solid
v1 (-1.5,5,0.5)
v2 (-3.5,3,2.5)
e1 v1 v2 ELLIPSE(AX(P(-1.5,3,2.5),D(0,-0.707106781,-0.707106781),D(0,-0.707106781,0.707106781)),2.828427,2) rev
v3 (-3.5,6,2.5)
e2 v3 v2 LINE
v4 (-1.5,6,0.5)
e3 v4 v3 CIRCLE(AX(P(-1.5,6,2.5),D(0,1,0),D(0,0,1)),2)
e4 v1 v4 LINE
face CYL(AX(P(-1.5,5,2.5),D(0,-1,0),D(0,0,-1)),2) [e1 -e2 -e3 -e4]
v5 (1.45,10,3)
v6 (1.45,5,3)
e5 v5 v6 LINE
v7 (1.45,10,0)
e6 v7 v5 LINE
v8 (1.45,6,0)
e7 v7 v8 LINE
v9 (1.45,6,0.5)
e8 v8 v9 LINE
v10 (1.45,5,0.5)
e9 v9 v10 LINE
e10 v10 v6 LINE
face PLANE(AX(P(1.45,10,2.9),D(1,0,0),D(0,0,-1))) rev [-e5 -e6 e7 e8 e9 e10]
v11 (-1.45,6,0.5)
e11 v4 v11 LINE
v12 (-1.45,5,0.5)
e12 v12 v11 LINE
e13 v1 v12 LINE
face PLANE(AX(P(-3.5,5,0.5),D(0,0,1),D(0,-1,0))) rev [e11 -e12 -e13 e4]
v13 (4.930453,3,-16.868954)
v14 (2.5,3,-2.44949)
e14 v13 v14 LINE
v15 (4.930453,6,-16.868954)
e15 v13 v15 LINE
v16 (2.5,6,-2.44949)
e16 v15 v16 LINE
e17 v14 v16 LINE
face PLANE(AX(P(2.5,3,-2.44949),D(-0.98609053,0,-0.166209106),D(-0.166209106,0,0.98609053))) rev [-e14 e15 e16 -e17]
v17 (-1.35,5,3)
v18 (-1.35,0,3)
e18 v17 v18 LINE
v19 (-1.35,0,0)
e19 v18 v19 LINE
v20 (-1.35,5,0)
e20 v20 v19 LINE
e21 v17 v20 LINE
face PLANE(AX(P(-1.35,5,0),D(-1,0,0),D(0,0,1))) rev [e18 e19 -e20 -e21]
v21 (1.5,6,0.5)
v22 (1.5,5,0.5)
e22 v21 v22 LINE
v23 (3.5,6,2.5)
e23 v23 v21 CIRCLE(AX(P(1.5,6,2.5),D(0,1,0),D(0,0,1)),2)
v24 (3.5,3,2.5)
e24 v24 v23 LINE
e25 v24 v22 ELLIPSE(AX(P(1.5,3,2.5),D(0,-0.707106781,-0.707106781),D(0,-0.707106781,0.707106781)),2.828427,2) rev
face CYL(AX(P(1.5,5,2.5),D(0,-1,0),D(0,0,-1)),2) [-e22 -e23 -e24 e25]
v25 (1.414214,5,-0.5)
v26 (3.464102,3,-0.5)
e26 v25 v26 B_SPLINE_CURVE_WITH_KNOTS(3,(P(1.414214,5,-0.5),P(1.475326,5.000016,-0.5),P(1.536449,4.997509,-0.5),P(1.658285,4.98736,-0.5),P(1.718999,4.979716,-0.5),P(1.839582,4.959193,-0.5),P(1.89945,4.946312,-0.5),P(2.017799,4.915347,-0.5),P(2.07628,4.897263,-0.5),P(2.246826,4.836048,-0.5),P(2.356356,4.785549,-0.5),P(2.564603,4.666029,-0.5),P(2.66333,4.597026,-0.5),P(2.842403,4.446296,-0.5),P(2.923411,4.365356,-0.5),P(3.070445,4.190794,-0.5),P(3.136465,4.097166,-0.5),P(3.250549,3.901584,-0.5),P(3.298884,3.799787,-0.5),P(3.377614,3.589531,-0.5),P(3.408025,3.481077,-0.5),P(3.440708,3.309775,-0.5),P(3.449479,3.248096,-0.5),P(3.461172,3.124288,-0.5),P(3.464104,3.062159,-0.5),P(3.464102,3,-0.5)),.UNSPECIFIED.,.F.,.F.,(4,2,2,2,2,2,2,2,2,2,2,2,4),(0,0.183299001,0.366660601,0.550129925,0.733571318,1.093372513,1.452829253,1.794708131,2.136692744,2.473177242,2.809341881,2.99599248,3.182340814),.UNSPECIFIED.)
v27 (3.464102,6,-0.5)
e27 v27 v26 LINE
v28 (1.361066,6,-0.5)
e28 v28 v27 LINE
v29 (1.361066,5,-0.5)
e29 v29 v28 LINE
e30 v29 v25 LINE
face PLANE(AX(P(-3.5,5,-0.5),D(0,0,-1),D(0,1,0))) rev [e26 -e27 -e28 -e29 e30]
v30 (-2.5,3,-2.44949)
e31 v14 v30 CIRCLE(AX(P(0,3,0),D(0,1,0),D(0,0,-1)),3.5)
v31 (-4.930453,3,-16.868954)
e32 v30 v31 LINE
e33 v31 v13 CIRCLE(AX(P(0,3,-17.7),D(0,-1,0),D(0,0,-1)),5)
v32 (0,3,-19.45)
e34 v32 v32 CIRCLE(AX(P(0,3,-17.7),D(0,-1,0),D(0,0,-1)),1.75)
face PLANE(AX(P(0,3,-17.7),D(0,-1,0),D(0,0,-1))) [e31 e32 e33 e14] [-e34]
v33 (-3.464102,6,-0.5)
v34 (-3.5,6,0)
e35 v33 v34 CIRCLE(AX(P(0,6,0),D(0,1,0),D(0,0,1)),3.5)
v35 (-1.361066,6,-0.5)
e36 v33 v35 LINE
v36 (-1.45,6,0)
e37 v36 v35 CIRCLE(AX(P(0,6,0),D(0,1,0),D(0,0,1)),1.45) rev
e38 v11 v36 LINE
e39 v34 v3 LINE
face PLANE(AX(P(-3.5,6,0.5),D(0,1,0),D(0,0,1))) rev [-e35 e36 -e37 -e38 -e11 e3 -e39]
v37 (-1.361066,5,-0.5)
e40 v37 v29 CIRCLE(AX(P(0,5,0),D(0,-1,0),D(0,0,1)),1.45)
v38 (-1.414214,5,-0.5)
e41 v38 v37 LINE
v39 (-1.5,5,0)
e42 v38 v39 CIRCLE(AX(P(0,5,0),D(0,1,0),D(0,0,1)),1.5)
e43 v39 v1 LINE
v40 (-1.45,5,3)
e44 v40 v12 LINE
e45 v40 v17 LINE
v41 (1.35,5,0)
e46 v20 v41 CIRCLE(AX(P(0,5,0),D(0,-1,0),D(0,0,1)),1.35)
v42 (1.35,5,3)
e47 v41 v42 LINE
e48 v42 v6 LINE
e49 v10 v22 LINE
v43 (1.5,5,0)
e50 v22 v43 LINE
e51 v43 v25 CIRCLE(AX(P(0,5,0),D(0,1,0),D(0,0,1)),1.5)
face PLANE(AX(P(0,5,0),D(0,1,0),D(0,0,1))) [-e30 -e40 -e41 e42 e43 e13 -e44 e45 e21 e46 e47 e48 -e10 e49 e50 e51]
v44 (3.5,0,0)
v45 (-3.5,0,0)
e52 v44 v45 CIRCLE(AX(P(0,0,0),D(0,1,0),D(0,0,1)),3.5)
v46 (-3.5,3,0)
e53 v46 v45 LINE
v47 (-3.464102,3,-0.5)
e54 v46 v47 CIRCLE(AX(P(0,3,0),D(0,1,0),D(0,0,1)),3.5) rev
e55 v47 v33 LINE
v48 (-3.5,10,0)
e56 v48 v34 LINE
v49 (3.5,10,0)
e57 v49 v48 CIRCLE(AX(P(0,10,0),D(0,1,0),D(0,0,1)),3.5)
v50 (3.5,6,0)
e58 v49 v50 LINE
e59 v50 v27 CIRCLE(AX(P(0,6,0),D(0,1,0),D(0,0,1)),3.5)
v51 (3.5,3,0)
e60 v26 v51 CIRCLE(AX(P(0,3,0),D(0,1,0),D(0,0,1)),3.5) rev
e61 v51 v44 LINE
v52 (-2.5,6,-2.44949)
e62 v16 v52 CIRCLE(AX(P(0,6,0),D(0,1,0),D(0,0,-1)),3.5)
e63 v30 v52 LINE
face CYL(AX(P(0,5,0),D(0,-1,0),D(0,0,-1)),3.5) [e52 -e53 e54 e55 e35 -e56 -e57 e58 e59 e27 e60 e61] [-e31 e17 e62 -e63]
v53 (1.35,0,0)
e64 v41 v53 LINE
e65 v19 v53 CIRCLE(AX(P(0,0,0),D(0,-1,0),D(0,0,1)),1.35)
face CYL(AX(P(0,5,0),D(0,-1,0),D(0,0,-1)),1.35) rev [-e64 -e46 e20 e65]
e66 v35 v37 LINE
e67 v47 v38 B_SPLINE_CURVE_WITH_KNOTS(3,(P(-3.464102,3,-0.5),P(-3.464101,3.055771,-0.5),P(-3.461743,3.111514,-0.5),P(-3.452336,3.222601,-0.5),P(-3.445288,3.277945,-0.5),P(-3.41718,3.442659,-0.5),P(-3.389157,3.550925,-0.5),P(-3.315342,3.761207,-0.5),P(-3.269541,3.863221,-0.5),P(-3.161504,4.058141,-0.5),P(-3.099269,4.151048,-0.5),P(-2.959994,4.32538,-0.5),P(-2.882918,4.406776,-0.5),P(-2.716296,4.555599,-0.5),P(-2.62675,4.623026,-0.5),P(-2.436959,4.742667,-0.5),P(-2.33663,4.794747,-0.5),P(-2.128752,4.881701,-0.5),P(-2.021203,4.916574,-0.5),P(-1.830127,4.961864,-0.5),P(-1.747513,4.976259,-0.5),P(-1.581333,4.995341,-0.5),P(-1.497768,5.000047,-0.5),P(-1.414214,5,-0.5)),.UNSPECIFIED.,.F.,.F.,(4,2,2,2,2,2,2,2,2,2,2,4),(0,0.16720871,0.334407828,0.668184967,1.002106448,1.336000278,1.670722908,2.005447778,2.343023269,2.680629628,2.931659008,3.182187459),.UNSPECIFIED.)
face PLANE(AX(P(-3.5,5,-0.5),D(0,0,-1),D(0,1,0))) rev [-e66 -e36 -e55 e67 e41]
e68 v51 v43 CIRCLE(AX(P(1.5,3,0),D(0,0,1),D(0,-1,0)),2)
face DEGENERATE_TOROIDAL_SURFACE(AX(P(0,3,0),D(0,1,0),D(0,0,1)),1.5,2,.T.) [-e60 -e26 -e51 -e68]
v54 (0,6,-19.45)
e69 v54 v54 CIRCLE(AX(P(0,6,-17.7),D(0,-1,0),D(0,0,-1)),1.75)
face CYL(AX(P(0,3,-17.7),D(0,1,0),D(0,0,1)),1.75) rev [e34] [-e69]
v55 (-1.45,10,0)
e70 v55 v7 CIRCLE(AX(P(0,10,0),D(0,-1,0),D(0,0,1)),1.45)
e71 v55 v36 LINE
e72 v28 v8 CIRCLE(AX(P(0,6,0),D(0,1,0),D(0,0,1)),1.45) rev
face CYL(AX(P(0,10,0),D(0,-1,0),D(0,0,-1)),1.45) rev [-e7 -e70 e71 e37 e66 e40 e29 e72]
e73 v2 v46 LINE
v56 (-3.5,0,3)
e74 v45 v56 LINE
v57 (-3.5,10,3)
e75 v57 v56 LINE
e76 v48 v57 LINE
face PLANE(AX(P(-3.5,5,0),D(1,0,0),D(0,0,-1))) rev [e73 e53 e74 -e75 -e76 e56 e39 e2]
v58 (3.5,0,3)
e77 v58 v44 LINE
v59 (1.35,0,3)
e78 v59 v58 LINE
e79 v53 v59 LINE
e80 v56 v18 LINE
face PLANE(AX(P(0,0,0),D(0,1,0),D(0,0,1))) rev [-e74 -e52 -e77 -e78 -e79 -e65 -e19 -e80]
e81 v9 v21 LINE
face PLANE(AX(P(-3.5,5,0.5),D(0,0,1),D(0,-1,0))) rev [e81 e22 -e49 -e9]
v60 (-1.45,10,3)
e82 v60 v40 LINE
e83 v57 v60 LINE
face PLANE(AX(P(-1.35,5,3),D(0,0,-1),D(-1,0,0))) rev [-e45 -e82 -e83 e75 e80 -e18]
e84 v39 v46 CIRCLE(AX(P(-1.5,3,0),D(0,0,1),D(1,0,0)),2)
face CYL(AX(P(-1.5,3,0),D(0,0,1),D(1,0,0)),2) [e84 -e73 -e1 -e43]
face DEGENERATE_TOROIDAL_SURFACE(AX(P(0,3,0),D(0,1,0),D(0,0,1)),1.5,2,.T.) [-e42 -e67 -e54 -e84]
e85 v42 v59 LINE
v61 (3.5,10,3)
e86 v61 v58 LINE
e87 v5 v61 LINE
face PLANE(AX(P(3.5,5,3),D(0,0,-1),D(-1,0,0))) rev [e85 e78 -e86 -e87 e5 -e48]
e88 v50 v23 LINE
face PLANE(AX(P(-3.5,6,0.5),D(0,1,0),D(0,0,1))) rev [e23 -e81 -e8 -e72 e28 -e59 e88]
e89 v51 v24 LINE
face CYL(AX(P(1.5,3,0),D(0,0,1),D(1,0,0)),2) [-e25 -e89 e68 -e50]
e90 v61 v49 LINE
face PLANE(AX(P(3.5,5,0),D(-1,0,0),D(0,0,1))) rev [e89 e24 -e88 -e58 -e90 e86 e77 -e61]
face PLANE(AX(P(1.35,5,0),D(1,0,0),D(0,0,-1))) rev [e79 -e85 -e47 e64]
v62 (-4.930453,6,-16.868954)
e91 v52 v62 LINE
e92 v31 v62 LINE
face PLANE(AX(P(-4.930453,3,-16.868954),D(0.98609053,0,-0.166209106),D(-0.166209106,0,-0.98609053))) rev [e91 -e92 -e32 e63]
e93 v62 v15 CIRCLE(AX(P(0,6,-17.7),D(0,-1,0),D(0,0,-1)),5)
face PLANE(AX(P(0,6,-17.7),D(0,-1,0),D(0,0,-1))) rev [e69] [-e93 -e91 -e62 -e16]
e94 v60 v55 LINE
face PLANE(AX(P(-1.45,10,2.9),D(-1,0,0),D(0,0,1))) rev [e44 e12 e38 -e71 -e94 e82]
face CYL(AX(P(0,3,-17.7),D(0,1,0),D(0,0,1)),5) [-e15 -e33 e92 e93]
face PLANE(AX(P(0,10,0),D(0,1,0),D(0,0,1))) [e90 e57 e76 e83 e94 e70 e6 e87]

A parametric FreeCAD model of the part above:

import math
import FreeCAD as App
import Part
import Sketcher

V = App.Vector


def edges_at(feature, points):
    """Names of the edges that pass closest to the given points."""
    edges = feature.Shape.Edges
    near = lambda p: min(range(len(edges)), key=lambda i: edges[i].distToShape(Part.Vertex(*p))[0])
    return sorted({f"Edge{near(p) + 1}" for p in points})


def add_polygon(sketch, points):
    """Adds a closed chain of lines whose ends are joined by coincident constraints."""
    first, n = sketch.GeometryCount, len(points)
    for a, b in zip(points, points[1:] + points[:1]):
        sketch.addGeometry(Part.LineSegment(App.Vector(*a, 0), App.Vector(*b, 0)), False)
    for i in range(n):
        sketch.addConstraint(Sketcher.Constraint("Coincident", first + i, 2, first + (i + 1) % n, 1))

doc = App.newDocument("Part")
params = doc.addObject("Spreadsheet::Sheet", "Params")
for row, (alias, value) in enumerate([
    ("sketch1_radius", "3.5 mm"),
    ("sketch1_height", "3 mm"),
    ("sketch1_radius2", "1.35 mm"),
    ("pad1_length", "5 mm"),
    ("sketch2_radius", "3.5 mm"),
    ("sketch2_height", "3 mm"),
    ("sketch2_radius2", "1.45 mm"),
    ("pad2_length", "5 mm"),
    ("sketch3_width", "1 mm"),
    ("fillet_radius", "2 mm"),
    ("sketch4_radius", "5 mm"),
    ("sketch4_diameter", "3.5 mm"),
    ("sketch4_radius2", "3.5 mm"),
    ("pad3_length", "3 mm"),
], start=1):
    params.set(f"A{row}", alias)
    params.set(f"B{row}", "=" + value)
    params.setAlias(f"B{row}", alias)

body = doc.addObject("PartDesign::Body", "Body")

sketch1 = doc.addObject("Sketcher::SketchObject", "Sketch")
body.addObject(sketch1)
sketch1.AttachmentSupport = (doc.XZ_Plane, [""])
sketch1.MapMode = "FlatFace"
sketch1.addGeometry(Part.LineSegment(V(-1.35, 3, 0), V(-1.35, 0, 0)), False)
sketch1.addGeometry(Part.ArcOfCircle(Part.Circle(V(0, 0, 0), V(0, 0, 1), 1.35), math.radians(180), math.radians(360)), False)
sketch1.addGeometry(Part.LineSegment(V(1.35, 0, 0), V(1.35, 3, 0)), False)
sketch1.addGeometry(Part.LineSegment(V(1.35, 3, 0), V(3.5, 3, 0)), False)
sketch1.addGeometry(Part.LineSegment(V(3.5, 3, 0), V(3.5, 0, 0)), False)
sketch1.addGeometry(Part.ArcOfCircle(Part.Circle(V(0, 0, 0), V(0, 0, 1), 3.5), math.radians(180), math.radians(360)), False)
sketch1.addGeometry(Part.LineSegment(V(-3.5, 0, 0), V(-3.5, 3, 0)), False)
sketch1.addGeometry(Part.LineSegment(V(-3.5, 3, 0), V(-1.35, 3, 0)), False)
sketch1.addConstraint(Sketcher.Constraint("Tangent", 0, 2, 1, 1))
sketch1.addConstraint(Sketcher.Constraint("Tangent", 1, 2, 2, 1))
sketch1.addConstraint(Sketcher.Constraint("Coincident", 2, 2, 3, 1))
sketch1.addConstraint(Sketcher.Constraint("Coincident", 3, 2, 4, 1))
sketch1.addConstraint(Sketcher.Constraint("Tangent", 4, 2, 5, 2))
sketch1.addConstraint(Sketcher.Constraint("Tangent", 5, 1, 6, 1))
sketch1.addConstraint(Sketcher.Constraint("Coincident", 6, 2, 7, 1))
sketch1.addConstraint(Sketcher.Constraint("Coincident", 7, 2, 0, 1))
sketch1.addConstraint(Sketcher.Constraint("Vertical", 0))
sketch1.addConstraint(Sketcher.Constraint("Vertical", 2))
sketch1.addConstraint(Sketcher.Constraint("Horizontal", 3))
sketch1.addConstraint(Sketcher.Constraint("Vertical", 4))
sketch1.addConstraint(Sketcher.Constraint("Vertical", 6))
sketch1.addConstraint(Sketcher.Constraint("Horizontal", 7))
sketch1.addConstraint(Sketcher.Constraint("Coincident", 1, 3, -1, 1))
sketch1.addConstraint(Sketcher.Constraint("Coincident", 5, 3, -1, 1))
sketch1.addConstraint(Sketcher.Constraint("Horizontal", 3, 2, 6, 2))
sketch1.addConstraint(Sketcher.Constraint("Radius", 5, 3.5))
sketch1.addConstraint(Sketcher.Constraint("DistanceY", 0, 2, 0, 1, 3.0))
sketch1.addConstraint(Sketcher.Constraint("Radius", 1, 1.35))
sketch1.setExpression("Constraints[17]", "Params.sketch1_radius")
sketch1.setExpression("Constraints[18]", "Params.sketch1_height")
sketch1.setExpression("Constraints[19]", "Params.sketch1_radius2")
pad1 = doc.addObject("PartDesign::Pad", "Pad")
body.addObject(pad1)
pad1.Profile = sketch1
pad1.setExpression("Length", "Params.pad1_length")
pad1.Reversed = True

sketch2 = doc.addObject("Sketcher::SketchObject", "Sketch001")
body.addObject(sketch2)
sketch2.AttachmentSupport = (doc.XZ_Plane, [""])
sketch2.MapMode = "FlatFace"
sketch2.AttachmentOffset = App.Placement(V(0, 0, -5), App.Rotation())
sketch2.addGeometry(Part.ArcOfCircle(Part.Circle(V(0, 0, 0), V(0, 0, 1), 1.45), math.radians(180), math.radians(360)), False)
sketch2.addGeometry(Part.LineSegment(V(1.45, 0, 0), V(1.45, 3, 0)), False)
sketch2.addGeometry(Part.LineSegment(V(1.45, 3, 0), V(3.5, 3, 0)), False)
sketch2.addGeometry(Part.LineSegment(V(3.5, 3, 0), V(3.5, 0, 0)), False)
sketch2.addGeometry(Part.ArcOfCircle(Part.Circle(V(0, 0, 0), V(0, 0, 1), 3.5), math.radians(180), math.radians(360)), False)
sketch2.addGeometry(Part.LineSegment(V(-3.5, 0, 0), V(-3.5, 3, 0)), False)
sketch2.addGeometry(Part.LineSegment(V(-3.5, 3, 0), V(-1.45, 3, 0)), False)
sketch2.addGeometry(Part.LineSegment(V(-1.45, 3, 0), V(-1.45, 0, 0)), False)
sketch2.addConstraint(Sketcher.Constraint("Tangent", 0, 2, 1, 1))
sketch2.addConstraint(Sketcher.Constraint("Coincident", 1, 2, 2, 1))
sketch2.addConstraint(Sketcher.Constraint("Coincident", 2, 2, 3, 1))
sketch2.addConstraint(Sketcher.Constraint("Tangent", 3, 2, 4, 2))
sketch2.addConstraint(Sketcher.Constraint("Tangent", 4, 1, 5, 1))
sketch2.addConstraint(Sketcher.Constraint("Coincident", 5, 2, 6, 1))
sketch2.addConstraint(Sketcher.Constraint("Coincident", 6, 2, 7, 1))
sketch2.addConstraint(Sketcher.Constraint("Tangent", 7, 2, 0, 1))
sketch2.addConstraint(Sketcher.Constraint("Vertical", 1))
sketch2.addConstraint(Sketcher.Constraint("Horizontal", 2))
sketch2.addConstraint(Sketcher.Constraint("Vertical", 3))
sketch2.addConstraint(Sketcher.Constraint("Vertical", 5))
sketch2.addConstraint(Sketcher.Constraint("Horizontal", 6))
sketch2.addConstraint(Sketcher.Constraint("Vertical", 7))
sketch2.addConstraint(Sketcher.Constraint("Coincident", 0, 3, -1, 1))
sketch2.addConstraint(Sketcher.Constraint("Coincident", 4, 3, -1, 1))
sketch2.addConstraint(Sketcher.Constraint("Horizontal", 2, 2, 5, 2))
sketch2.addConstraint(Sketcher.Constraint("Radius", 4, 3.5))
sketch2.addConstraint(Sketcher.Constraint("DistanceY", 1, 1, 1, 2, 3.0))
sketch2.addConstraint(Sketcher.Constraint("Radius", 0, 1.45))
sketch2.setExpression("Constraints[17]", "Params.sketch2_radius")
sketch2.setExpression("Constraints[18]", "Params.sketch2_height")
sketch2.setExpression("Constraints[19]", "Params.sketch2_radius2")
pad2 = doc.addObject("PartDesign::Pad", "Pad001")
body.addObject(pad2)
pad2.Profile = sketch2
pad2.setExpression("Length", "Params.pad2_length")
pad2.Reversed = True

sketch3 = doc.addObject("Sketcher::SketchObject", "Sketch002")
body.addObject(sketch3)
sketch3.AttachmentSupport = (doc.YZ_Plane, [""])
sketch3.MapMode = "FlatFace"
sketch3.AttachmentOffset = App.Placement(V(0, 0, -1.45), App.Rotation())
add_polygon(sketch3, [(6, 0.5), (5, 0.5), (5, -0.5), (6, -0.5)])
sketch3.addConstraint(Sketcher.Constraint("Horizontal", 0))
sketch3.addConstraint(Sketcher.Constraint("Vertical", 1))
sketch3.addConstraint(Sketcher.Constraint("Horizontal", 2))
sketch3.addConstraint(Sketcher.Constraint("Vertical", 3))
sketch3.addConstraint(Sketcher.Constraint("Equal", 2, 1))
sketch3.addConstraint(Sketcher.Constraint("DistanceX", 0, 2, 0, 1, 1.0))
sketch3.addConstraint(Sketcher.Constraint("DistanceX", -1, 1, 0, 2, 5.0))
sketch3.addConstraint(Sketcher.Constraint("DistanceY", -1, 1, 0, 2, 0.5))
sketch3.setExpression("Constraints[9]", "Params.sketch3_width")
pocket1 = doc.addObject("PartDesign::Pocket", "Pocket")
body.addObject(pocket1)
pocket1.Profile = sketch3
pocket1.Type = "ThroughAll"
pocket1.Midplane = True
doc.recompute()

fillet = doc.addObject("PartDesign::Fillet", "Fillet")
body.addObject(fillet)
fillet.Base = (pocket1, edges_at(pocket1, [
    (3.5, 5.5, 0.5),
    (3.5, 5, 0.25),
    (-3.5, 5.5, 0.5),
    (3.491, 5, -0.251),
    (-3.5, 5, 0.25),
    (-3.491, 5, -0.251),
]))
fillet.setExpression("Radius", "Params.fillet_radius")

sketch4 = doc.addObject("Sketcher::SketchObject", "Sketch003")
body.addObject(sketch4)
sketch4.AttachmentSupport = (doc.XZ_Plane, [""])
sketch4.MapMode = "FlatFace"
sketch4.AttachmentOffset = App.Placement(V(0, 0, -3), App.Rotation())
sketch4.addGeometry(Part.LineSegment(V(-2.5, -2.44949, 0), V(-4.930453, -16.868954, 0)), False)
sketch4.addGeometry(Part.ArcOfCircle(Part.Circle(V(0, -17.7, 0), V(0, 0, 1), 5), math.radians(170.432519), math.radians(369.567481)), False)
sketch4.addGeometry(Part.LineSegment(V(4.930453, -16.868954, 0), V(2.5, -2.44949, 0)), False)
sketch4.addGeometry(Part.ArcOfCircle(Part.Circle(V(0, 0, 0), V(0, 0, 1), 3.5), math.radians(-135.584691), math.radians(-44.415309)), False)
sketch4.addGeometry(Part.Circle(V(0, -17.7, 0), V(0, 0, 1), 1.75), False)
sketch4.addConstraint(Sketcher.Constraint("Tangent", 0, 2, 1, 1))
sketch4.addConstraint(Sketcher.Constraint("Tangent", 1, 2, 2, 1))
sketch4.addConstraint(Sketcher.Constraint("Coincident", 2, 2, 3, 2))
sketch4.addConstraint(Sketcher.Constraint("Coincident", 3, 1, 0, 1))
sketch4.addConstraint(Sketcher.Constraint("Coincident", 3, 3, -1, 1))
sketch4.addConstraint(Sketcher.Constraint("Coincident", 4, 3, 1, 3))
sketch4.addConstraint(Sketcher.Constraint("Symmetric", 0, 2, 1, 2, -2))
sketch4.addConstraint(Sketcher.Constraint("Radius", 1, 5.0))
sketch4.addConstraint(Sketcher.Constraint("Diameter", 4, 3.5))
sketch4.addConstraint(Sketcher.Constraint("Radius", 3, 3.5))
sketch4.addConstraint(Sketcher.Constraint("DistanceX", 3, 1, 2, 2, 5.0))
sketch4.addConstraint(Sketcher.Constraint("DistanceY", 1, 3, -1, 1, 17.7))
sketch4.setExpression("Constraints[7]", "Params.sketch4_radius")
sketch4.setExpression("Constraints[8]", "Params.sketch4_diameter")
sketch4.setExpression("Constraints[9]", "Params.sketch4_radius2")
pad3 = doc.addObject("PartDesign::Pad", "Pad002")
body.addObject(pad3)
pad3.Profile = sketch4
pad3.setExpression("Length", "Params.pad3_length")
pad3.Reversed = True

doc.recompute()
